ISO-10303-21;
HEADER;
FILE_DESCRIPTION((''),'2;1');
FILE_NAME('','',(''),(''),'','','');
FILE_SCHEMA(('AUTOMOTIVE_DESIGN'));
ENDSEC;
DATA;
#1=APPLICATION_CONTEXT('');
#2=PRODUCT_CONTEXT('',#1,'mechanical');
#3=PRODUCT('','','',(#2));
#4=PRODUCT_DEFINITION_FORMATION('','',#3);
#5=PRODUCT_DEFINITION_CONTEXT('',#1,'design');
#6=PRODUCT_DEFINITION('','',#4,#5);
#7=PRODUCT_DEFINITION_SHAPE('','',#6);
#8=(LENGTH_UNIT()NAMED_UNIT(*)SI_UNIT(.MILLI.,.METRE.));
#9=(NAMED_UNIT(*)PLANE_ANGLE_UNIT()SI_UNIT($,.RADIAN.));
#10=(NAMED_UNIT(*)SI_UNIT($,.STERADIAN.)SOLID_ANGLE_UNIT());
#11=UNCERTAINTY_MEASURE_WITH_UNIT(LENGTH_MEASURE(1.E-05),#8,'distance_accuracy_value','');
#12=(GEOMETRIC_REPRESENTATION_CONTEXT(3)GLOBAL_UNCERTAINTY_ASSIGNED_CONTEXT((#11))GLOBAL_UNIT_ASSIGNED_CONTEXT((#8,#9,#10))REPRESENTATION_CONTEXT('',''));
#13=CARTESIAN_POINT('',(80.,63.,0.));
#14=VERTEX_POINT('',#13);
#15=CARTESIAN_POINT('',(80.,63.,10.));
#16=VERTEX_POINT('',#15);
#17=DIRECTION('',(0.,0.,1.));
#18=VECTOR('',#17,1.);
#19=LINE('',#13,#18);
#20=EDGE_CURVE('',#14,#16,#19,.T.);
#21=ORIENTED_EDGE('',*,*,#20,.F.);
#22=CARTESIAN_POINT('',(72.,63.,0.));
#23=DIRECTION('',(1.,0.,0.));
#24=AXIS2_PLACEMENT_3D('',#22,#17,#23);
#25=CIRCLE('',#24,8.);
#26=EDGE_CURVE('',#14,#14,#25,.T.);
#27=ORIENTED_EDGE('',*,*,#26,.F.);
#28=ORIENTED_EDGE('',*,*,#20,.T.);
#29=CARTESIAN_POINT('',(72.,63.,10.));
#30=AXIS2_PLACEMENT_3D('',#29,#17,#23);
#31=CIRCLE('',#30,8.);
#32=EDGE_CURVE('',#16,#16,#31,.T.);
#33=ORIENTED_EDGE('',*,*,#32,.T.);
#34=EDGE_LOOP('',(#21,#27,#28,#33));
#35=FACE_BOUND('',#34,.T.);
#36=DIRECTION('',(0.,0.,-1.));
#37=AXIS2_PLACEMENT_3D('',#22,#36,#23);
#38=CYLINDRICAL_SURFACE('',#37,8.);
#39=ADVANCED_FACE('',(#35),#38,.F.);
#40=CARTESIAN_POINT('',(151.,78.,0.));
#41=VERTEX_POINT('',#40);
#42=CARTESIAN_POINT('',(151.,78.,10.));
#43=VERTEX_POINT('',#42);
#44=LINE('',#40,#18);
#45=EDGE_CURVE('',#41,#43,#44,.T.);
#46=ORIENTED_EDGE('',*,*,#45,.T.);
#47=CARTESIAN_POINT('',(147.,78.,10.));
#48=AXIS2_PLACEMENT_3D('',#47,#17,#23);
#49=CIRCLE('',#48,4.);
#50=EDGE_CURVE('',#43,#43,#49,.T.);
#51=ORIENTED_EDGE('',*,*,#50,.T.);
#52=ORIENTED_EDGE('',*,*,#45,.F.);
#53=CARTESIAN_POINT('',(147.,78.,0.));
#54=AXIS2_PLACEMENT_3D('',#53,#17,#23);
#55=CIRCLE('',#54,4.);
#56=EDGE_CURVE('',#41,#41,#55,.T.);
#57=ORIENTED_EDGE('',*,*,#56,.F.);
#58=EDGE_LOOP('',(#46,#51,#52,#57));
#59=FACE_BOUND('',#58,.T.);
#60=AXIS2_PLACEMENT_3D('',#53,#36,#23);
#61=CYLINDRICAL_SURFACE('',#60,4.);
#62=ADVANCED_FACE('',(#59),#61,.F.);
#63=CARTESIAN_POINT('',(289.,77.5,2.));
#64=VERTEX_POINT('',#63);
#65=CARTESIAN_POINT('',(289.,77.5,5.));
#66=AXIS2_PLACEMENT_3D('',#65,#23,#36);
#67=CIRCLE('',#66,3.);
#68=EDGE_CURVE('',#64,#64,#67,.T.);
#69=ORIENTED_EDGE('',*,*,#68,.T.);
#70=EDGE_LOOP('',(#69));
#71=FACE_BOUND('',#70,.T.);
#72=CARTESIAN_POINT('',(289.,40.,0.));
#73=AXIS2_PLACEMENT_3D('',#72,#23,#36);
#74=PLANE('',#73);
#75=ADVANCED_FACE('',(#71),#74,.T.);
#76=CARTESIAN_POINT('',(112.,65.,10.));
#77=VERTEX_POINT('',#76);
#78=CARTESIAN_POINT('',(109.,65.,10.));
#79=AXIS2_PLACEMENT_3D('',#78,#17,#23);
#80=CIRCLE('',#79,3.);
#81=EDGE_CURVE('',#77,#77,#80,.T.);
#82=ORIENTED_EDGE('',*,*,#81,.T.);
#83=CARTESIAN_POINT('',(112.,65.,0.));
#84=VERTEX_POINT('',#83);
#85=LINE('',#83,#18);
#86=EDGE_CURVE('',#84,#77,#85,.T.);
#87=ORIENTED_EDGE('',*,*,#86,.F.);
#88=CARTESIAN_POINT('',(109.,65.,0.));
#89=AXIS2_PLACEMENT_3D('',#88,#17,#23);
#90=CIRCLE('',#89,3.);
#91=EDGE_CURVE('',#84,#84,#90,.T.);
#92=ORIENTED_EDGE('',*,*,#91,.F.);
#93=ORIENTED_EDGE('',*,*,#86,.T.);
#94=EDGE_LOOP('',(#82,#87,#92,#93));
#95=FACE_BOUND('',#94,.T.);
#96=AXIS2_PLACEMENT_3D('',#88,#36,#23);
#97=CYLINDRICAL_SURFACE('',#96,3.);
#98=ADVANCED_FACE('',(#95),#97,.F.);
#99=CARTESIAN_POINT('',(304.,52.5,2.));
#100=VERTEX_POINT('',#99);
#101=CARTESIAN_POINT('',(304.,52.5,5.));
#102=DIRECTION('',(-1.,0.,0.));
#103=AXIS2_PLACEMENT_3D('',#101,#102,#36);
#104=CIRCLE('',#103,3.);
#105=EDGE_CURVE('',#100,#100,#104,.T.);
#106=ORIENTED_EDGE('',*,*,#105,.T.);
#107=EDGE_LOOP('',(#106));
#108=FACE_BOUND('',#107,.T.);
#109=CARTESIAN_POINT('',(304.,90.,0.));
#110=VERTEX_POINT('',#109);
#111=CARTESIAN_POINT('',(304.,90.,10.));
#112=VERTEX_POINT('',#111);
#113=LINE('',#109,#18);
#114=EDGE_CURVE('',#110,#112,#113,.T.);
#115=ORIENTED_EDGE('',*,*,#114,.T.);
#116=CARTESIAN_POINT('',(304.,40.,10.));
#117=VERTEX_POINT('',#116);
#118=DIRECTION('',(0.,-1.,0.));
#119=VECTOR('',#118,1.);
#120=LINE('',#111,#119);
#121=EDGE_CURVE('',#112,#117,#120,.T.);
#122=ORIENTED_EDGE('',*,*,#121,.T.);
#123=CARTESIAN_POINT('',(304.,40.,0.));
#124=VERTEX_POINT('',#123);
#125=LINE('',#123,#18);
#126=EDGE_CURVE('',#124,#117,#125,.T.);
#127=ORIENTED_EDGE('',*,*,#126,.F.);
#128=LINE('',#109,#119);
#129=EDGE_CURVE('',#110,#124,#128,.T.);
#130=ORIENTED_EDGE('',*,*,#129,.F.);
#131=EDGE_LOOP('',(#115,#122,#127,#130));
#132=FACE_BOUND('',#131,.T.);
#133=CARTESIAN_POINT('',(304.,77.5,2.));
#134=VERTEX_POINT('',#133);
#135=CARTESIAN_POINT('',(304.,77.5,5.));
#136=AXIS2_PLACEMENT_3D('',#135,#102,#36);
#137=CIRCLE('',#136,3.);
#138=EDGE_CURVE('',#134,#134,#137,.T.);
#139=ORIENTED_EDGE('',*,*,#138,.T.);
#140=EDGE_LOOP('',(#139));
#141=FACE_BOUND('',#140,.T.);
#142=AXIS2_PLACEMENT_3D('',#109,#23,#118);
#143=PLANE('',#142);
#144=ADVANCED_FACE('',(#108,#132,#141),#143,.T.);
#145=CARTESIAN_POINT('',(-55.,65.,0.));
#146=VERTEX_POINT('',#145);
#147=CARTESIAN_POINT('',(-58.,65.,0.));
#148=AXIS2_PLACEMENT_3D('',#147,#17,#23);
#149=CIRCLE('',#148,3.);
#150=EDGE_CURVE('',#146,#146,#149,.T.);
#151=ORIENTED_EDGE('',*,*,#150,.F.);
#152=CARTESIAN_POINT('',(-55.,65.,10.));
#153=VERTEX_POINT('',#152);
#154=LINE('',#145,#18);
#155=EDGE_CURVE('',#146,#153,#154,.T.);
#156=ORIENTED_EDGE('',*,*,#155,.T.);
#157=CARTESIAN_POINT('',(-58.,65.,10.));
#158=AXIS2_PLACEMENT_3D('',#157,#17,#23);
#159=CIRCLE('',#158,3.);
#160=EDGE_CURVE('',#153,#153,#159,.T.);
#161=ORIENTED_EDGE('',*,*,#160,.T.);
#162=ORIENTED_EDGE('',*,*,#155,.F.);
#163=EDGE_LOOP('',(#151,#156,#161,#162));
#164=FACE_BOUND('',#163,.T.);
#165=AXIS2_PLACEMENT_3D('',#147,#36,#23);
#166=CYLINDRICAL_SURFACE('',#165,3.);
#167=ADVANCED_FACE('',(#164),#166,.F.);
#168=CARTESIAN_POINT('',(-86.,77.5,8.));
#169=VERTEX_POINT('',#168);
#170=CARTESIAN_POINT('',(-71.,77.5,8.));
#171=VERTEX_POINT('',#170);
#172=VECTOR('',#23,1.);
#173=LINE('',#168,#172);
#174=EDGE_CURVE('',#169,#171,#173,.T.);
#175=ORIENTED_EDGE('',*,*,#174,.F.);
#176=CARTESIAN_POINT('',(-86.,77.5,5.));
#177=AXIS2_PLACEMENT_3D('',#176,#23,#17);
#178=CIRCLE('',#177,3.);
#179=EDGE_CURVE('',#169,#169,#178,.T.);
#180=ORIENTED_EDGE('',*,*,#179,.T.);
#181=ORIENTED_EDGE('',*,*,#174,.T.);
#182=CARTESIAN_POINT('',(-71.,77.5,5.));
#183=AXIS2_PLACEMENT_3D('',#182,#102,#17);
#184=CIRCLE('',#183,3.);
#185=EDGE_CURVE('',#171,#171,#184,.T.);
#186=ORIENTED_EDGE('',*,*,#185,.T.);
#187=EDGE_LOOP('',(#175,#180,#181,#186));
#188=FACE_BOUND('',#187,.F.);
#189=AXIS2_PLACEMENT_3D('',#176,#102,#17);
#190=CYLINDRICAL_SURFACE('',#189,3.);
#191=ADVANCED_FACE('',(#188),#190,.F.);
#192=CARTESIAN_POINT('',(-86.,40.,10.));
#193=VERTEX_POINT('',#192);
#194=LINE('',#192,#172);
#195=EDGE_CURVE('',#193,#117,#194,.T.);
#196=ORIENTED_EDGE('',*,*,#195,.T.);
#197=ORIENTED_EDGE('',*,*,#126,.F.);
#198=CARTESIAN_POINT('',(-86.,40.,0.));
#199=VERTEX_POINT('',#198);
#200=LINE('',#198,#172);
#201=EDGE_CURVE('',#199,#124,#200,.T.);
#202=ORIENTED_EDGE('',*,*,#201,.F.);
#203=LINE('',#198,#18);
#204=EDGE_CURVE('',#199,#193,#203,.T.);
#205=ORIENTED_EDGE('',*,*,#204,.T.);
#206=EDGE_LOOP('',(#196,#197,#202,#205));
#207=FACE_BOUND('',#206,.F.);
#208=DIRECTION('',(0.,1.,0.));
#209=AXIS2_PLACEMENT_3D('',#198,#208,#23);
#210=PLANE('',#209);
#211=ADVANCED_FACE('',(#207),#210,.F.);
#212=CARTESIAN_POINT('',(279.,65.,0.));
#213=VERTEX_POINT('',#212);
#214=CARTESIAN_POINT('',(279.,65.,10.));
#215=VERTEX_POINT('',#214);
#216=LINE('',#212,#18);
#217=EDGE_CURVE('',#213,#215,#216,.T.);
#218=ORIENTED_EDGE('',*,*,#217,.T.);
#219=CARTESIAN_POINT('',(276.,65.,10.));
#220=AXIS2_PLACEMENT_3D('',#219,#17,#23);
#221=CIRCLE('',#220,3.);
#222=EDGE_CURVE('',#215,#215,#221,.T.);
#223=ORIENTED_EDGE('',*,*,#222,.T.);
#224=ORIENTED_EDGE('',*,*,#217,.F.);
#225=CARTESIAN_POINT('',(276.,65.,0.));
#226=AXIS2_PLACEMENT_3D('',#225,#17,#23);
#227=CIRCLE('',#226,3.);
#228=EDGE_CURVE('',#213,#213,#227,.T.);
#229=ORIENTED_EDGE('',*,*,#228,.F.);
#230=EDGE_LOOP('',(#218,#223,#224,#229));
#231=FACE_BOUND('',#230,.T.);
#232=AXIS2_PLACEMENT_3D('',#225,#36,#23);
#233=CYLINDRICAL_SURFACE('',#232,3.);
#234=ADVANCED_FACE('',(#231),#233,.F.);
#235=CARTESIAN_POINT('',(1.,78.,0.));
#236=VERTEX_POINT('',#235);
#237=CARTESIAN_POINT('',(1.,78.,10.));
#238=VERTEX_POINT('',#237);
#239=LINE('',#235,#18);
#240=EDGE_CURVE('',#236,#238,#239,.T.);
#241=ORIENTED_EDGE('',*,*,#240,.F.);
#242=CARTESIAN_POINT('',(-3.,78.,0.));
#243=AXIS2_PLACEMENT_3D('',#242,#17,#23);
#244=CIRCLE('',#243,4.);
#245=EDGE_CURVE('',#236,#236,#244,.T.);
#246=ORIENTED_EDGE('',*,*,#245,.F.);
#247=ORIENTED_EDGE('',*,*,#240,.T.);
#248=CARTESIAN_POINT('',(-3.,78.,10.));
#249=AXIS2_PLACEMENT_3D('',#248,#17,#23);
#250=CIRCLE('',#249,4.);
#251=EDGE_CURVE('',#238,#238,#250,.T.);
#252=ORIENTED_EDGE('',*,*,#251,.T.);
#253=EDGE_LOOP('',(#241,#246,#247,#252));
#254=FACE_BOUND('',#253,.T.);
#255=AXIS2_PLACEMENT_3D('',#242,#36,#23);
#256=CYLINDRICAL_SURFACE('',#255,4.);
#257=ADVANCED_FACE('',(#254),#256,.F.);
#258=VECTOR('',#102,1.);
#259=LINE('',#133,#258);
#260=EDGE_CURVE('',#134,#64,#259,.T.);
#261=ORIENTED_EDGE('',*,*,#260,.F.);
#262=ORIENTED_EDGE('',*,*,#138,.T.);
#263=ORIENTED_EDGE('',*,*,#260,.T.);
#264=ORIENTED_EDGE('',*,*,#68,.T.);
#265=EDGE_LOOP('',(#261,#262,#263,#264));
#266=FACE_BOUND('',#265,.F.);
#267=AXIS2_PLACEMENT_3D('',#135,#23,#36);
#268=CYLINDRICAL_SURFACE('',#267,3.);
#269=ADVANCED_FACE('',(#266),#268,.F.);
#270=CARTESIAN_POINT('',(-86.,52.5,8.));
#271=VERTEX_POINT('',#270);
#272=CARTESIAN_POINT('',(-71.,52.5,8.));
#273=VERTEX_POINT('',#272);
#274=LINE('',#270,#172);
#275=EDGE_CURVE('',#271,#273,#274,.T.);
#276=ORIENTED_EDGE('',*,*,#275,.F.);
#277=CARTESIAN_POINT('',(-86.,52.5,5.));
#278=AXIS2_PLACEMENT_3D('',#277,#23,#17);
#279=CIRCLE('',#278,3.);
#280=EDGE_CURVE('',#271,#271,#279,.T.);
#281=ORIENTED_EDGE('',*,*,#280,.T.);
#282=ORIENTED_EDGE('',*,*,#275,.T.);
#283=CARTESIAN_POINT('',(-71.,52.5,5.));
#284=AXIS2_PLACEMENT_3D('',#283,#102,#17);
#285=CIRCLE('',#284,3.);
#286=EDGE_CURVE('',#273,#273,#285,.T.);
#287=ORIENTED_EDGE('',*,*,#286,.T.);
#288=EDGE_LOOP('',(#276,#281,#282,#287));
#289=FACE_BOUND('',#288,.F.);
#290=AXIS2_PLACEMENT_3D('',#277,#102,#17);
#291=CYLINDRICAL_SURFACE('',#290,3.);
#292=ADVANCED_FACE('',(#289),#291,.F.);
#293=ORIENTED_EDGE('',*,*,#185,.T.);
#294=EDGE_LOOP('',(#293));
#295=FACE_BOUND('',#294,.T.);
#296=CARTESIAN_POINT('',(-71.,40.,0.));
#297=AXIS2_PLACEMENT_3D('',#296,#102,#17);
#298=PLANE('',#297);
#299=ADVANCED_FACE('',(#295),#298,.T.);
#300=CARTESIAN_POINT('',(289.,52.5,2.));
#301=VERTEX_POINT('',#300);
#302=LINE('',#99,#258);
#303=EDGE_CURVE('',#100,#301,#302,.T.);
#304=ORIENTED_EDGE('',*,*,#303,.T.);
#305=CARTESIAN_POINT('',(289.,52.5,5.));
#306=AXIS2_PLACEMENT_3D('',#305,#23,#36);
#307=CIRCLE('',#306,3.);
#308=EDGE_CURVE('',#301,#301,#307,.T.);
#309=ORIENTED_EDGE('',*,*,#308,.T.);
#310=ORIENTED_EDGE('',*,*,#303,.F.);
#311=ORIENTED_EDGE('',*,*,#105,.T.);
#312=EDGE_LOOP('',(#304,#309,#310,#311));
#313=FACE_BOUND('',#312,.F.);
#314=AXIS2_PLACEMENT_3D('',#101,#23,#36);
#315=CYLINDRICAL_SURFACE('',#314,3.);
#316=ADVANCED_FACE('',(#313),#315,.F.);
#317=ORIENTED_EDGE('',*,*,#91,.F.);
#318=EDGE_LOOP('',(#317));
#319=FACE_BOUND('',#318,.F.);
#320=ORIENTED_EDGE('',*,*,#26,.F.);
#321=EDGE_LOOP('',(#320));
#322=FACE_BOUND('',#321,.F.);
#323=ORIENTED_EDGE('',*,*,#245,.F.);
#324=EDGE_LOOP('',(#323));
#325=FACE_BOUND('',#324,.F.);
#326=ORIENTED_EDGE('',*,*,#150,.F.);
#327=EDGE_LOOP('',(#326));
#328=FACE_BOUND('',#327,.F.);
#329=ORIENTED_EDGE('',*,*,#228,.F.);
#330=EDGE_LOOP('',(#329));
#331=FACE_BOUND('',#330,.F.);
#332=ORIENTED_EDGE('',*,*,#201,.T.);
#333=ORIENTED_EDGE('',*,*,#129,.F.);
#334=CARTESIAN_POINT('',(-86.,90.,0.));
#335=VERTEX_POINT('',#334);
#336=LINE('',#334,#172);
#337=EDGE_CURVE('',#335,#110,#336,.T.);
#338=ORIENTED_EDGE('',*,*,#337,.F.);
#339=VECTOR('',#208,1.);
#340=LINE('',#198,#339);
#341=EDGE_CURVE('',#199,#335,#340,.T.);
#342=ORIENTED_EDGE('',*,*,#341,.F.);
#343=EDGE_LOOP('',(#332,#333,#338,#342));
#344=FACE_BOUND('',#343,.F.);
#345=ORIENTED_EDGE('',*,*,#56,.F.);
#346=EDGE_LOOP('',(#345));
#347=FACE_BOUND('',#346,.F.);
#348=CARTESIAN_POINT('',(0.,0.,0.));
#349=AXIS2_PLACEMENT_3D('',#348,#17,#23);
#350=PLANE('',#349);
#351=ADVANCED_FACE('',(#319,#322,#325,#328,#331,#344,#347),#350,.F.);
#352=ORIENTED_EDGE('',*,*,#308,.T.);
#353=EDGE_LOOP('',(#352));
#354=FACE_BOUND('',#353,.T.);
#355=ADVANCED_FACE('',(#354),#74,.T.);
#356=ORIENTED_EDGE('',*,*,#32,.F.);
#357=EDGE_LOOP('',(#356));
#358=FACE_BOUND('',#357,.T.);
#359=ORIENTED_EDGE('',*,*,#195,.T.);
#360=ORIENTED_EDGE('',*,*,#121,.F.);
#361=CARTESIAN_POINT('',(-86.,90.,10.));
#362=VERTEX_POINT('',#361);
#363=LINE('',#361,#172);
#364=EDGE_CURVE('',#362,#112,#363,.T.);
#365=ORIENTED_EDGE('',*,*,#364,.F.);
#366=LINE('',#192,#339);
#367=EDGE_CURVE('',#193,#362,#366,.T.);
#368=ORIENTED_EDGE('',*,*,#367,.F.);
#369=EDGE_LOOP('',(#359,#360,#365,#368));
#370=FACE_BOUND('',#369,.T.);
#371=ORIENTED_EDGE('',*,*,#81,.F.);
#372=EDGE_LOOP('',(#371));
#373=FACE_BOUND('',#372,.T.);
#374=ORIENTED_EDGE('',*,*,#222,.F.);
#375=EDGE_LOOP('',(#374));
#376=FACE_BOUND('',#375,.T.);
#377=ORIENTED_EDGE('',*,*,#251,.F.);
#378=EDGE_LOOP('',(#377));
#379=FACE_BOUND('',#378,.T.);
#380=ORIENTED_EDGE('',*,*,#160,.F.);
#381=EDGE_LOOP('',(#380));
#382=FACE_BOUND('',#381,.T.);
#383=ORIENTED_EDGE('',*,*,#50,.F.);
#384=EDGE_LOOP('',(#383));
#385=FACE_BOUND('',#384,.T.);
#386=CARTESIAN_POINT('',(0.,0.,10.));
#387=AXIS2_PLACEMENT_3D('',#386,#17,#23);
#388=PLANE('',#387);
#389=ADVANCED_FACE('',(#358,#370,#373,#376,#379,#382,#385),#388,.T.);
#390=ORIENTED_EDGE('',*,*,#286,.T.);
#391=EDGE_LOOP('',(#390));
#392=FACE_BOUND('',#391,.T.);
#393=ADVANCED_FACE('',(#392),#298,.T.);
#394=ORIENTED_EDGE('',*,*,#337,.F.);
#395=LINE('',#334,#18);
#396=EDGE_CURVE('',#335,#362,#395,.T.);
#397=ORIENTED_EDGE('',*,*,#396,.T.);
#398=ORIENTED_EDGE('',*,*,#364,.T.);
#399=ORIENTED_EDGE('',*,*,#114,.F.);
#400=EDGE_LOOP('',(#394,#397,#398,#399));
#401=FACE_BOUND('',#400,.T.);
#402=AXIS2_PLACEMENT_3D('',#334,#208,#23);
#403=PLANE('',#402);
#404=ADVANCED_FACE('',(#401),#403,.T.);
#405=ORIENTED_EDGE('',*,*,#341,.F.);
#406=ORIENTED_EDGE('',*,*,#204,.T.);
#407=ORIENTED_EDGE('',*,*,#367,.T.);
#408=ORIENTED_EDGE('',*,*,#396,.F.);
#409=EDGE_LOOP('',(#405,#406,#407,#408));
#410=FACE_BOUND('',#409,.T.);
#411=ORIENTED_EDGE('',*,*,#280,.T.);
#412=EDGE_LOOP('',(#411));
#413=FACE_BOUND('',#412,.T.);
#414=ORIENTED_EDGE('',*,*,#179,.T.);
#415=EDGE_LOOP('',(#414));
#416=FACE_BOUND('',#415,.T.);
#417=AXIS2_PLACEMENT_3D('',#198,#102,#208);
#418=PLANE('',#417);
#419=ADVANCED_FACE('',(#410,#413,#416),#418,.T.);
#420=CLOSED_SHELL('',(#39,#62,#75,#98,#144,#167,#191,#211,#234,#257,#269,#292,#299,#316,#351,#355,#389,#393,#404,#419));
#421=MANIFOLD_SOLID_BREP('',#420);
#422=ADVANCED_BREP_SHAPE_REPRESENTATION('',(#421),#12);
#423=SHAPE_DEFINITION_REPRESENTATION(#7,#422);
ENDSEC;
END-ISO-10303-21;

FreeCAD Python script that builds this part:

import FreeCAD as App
import Part
import Sketcher

V = App.Vector

doc = App.newDocument("Part")
body = doc.addObject("PartDesign::Body", "Body")

# Sketch on XY plane
sketch1 = doc.addObject("Sketcher::SketchObject", "Sketch")
body.addObject(sketch1)
sketch1.AttachmentSupport = (doc.XY_Plane, [""])
sketch1.MapMode = "FlatFace"
sketch1.addGeometry(Part.LineSegment(V(-86, 90, 0), V(-86, 40, 0)), False)
sketch1.addGeometry(Part.LineSegment(V(-86, 40, 0), V(304, 40, 0)), False)
sketch1.addGeometry(Part.LineSegment(V(304, 40, 0), V(304, 90, 0)), False)
sketch1.addGeometry(Part.LineSegment(V(304, 90, 0), V(-86, 90, 0)), False)
sketch1.addGeometry(Part.Circle(V(72, 63, 0), V(0, 0, 1), 8), False)
sketch1.addGeometry(Part.Circle(V(-58, 65, 0), V(0, 0, 1), 3), False)
sketch1.addGeometry(Part.Circle(V(-3, 78, 0), V(0, 0, 1), 4), False)
sketch1.addGeometry(Part.Circle(V(109, 65, 0), V(0, 0, 1), 3), False)
sketch1.addGeometry(Part.Circle(V(276, 65, 0), V(0, 0, 1), 3), False)
sketch1.addGeometry(Part.Circle(V(147, 78, 0), V(0, 0, 1), 4), False)
sketch1.addConstraint(Sketcher.Constraint("Coincident", 0, 2, 1, 1))
sketch1.addConstraint(Sketcher.Constraint("Coincident", 1, 2, 2, 1))
sketch1.addConstraint(Sketcher.Constraint("Coincident", 2, 2, 3, 1))
sketch1.addConstraint(Sketcher.Constraint("Coincident", 3, 2, 0, 1))
sketch1.addConstraint(Sketcher.Constraint("Vertical", 0))
sketch1.addConstraint(Sketcher.Constraint("Horizontal", 1))
sketch1.addConstraint(Sketcher.Constraint("Vertical", 2))
sketch1.addConstraint(Sketcher.Constraint("Horizontal", 3))
sketch1.addConstraint(Sketcher.Constraint("Equal", 5, 7))
sketch1.addConstraint(Sketcher.Constraint("Equal", 7, 8))
sketch1.addConstraint(Sketcher.Constraint("Equal", 6, 9))
sketch1.addConstraint(Sketcher.Constraint("Horizontal", 5, 3, 7, 3))
sketch1.addConstraint(Sketcher.Constraint("Horizontal", 7, 3, 8, 3))
sketch1.addConstraint(Sketcher.Constraint("Horizontal", 6, 3, 9, 3))
sketch1.addConstraint(Sketcher.Constraint("Diameter", 4, 16.0))
sketch1.addConstraint(Sketcher.Constraint("Diameter", 5, 6.0))
sketch1.addConstraint(Sketcher.Constraint("Diameter", 6, 8.0))
sketch1.addConstraint(Sketcher.Constraint("DistanceX", 1, 1, 1, 2, 390.0))
sketch1.addConstraint(Sketcher.Constraint("DistanceY", 0, 2, 0, 1, 50.0))
sketch1.addConstraint(Sketcher.Constraint("DistanceX", 6, 3, 4, 3, 75.0))
sketch1.addConstraint(Sketcher.Constraint("DistanceY", 4, 3, 6, 3, 15.0))
sketch1.addConstraint(Sketcher.Constraint("DistanceX", 4, 3, 9, 3, 75.0))
sketch1.addConstraint(Sketcher.Constraint("DistanceX", 0, 2, 5, 3, 28.0))
sketch1.addConstraint(Sketcher.Constraint("DistanceY", 0, 2, 5, 3, 25.0))
sketch1.addConstraint(Sketcher.Constraint("DistanceX", 0, 2, 7, 3, 195.0))
sketch1.addConstraint(Sketcher.Constraint("DistanceX", 8, 3, 1, 2, 28.0))
sketch1.addConstraint(Sketcher.Constraint("DistanceX", 4, 3, 1, 2, 232.0))
sketch1.addConstraint(Sketcher.Constraint("DistanceY", 4, 3, 2, 2, 27.0))
sketch1.addConstraint(Sketcher.Constraint("DistanceX", -1, 1, 4, 3, 72.0))
sketch1.addConstraint(Sketcher.Constraint("DistanceY", -1, 1, 4, 3, 63.0))
pad1 = doc.addObject("PartDesign::Pad", "Pad")
body.addObject(pad1)
pad1.Profile = sketch1
pad1.Length = 10

# Sketch on YZ plane
sketch2 = doc.addObject("Sketcher::SketchObject", "Sketch001")
body.addObject(sketch2)
sketch2.AttachmentSupport = (doc.YZ_Plane, [""])
sketch2.MapMode = "FlatFace"
sketch2.AttachmentOffset = App.Placement(V(0, 0, 304), App.Rotation())
sketch2.addGeometry(Part.Circle(V(77.5, 5, 0), V(0, 0, 1), 3), False)
sketch2.addGeometry(Part.Circle(V(52.5, 5, 0), V(0, 0, 1), 3), False)
sketch2.addConstraint(Sketcher.Constraint("Equal", 0, 1))
sketch2.addConstraint(Sketcher.Constraint("Horizontal", 0, 3, 1, 3))
sketch2.addConstraint(Sketcher.Constraint("Diameter", 0, 6.0))
sketch2.addConstraint(Sketcher.Constraint("DistanceY", -1, 1, 0, 3, 5.0))
sketch2.addConstraint(Sketcher.Constraint("DistanceX", 1, 3, 0, 3, 25.0))
sketch2.addConstraint(Sketcher.Constraint("DistanceX", -1, 1, 0, 3, 77.5))
pocket1 = doc.addObject("PartDesign::Pocket", "Pocket")
body.addObject(pocket1)
pocket1.Profile = sketch2
pocket1.Length = 15

# Sketch on YZ plane
sketch3 = doc.addObject("Sketcher::SketchObject", "Sketch002")
body.addObject(sketch3)
sketch3.AttachmentSupport = (doc.YZ_Plane, [""])
sketch3.MapMode = "FlatFace"
sketch3.AttachmentOffset = App.Placement(V(0, 0, -86), App.Rotation())
sketch3.addGeometry(Part.Circle(V(77.5, 5, 0), V(0, 0, 1), 3), False)
sketch3.addGeometry(Part.Circle(V(52.5, 5, 0), V(0, 0, 1), 3), False)
sketch3.addConstraint(Sketcher.Constraint("Equal", 0, 1))
sketch3.addConstraint(Sketcher.Constraint("Horizontal", 0, 3, 1, 3))
sketch3.addConstraint(Sketcher.Constraint("Diameter", 0, 6.0))
sketch3.addConstraint(Sketcher.Constraint("DistanceY", -1, 1, 0, 3, 5.0))
sketch3.addConstraint(Sketcher.Constraint("DistanceX", 1, 3, 0, 3, 25.0))
sketch3.addConstraint(Sketcher.Constraint("DistanceX", -1, 1, 0, 3, 77.5))
pocket2 = doc.addObject("PartDesign::Pocket", "Pocket001")
body.addObject(pocket2)
pocket2.Profile = sketch3
pocket2.Length = 15
pocket2.Reversed = True

doc.recompute()
